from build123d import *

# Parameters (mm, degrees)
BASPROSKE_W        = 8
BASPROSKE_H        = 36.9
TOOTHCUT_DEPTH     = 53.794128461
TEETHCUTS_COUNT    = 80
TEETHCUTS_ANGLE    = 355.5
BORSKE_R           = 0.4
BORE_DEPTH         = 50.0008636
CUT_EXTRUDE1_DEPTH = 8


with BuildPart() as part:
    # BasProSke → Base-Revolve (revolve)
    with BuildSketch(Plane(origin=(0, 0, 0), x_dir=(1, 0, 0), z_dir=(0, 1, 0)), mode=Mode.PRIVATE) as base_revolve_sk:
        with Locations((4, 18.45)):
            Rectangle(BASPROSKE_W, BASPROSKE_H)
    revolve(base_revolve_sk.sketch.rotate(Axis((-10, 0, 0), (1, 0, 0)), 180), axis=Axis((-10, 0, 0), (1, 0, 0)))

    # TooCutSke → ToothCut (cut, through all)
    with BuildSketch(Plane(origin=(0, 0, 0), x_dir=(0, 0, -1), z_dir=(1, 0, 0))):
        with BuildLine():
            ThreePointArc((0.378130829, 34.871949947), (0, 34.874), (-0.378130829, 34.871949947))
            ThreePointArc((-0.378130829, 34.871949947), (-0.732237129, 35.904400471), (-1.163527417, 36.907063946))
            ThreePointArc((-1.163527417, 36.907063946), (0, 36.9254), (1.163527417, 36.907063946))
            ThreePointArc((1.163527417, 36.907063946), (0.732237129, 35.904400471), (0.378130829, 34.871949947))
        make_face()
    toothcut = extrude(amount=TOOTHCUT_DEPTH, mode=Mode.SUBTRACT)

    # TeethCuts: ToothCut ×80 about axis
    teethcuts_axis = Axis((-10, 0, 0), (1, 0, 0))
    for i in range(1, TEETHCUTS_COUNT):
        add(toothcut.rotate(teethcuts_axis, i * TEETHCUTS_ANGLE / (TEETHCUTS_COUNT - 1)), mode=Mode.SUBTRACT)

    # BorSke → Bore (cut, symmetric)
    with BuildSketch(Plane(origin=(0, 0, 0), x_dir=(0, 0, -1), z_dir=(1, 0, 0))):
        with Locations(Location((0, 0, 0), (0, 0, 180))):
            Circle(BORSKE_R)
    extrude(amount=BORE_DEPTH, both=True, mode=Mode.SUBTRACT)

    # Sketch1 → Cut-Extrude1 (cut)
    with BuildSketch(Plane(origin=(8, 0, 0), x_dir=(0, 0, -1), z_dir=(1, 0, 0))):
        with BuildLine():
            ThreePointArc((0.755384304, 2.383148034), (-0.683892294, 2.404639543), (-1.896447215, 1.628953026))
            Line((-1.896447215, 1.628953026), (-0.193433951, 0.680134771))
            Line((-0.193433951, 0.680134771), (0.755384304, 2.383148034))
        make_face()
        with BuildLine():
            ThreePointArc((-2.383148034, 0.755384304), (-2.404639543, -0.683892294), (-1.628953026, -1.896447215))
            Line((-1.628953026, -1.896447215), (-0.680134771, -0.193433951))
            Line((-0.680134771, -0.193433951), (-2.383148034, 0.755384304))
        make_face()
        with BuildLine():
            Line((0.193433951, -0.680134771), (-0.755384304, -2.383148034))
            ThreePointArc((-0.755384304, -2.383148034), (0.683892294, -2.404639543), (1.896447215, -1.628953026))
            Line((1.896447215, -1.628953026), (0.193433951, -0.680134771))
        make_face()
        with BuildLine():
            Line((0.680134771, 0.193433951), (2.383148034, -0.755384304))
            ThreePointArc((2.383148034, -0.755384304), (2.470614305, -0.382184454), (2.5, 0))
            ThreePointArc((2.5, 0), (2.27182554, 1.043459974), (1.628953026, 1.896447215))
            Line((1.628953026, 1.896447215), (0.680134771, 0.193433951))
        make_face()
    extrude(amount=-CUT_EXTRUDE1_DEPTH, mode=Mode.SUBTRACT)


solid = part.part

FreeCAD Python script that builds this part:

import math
import FreeCAD as App
import Part
import Sketcher

doc = App.newDocument("Part")
params = doc.addObject("Spreadsheet::Sheet", "Params")
for row, (alias, value) in enumerate([
    ("sketch1_width", "8 mm"),
    ("sketch1_height", "36.9 mm"),
    ("revolution_angle", "360 deg"),
    ("sketch2_radius", "14.4 mm"),
    ("sketch3_diameter", "0.8 mm"),
    ("pocket2_length", "100.001727 mm"),
    ("sketch4_radius", "2.5 mm"),
    ("pocket3_length", "8 mm"),
], start=1):
    params.set(f"A{row}", alias)
    params.set(f"B{row}", "=" + value)
    params.setAlias(f"B{row}", alias)

body = doc.addObject("PartDesign::Body", "Body")

# Sketch on XZ plane
sketch1 = doc.addObject("Sketcher::SketchObject", "Sketch")
body.addObject(sketch1)
sketch1.AttachmentSupport = (doc.XZ_Plane, [""])
sketch1.MapMode = "FlatFace"
sketch1.addGeometry(Part.LineSegment(App.Vector(0, -36.9, 0), App.Vector(0, 0, 0)), False)
sketch1.addGeometry(Part.LineSegment(App.Vector(0, 0, 0), App.Vector(8, 0, 0)), False)
sketch1.addGeometry(Part.LineSegment(App.Vector(8, 0, 0), App.Vector(8, -36.9, 0)), False)
sketch1.addGeometry(Part.LineSegment(App.Vector(8, -36.9, 0), App.Vector(0, -36.9, 0)), False)
sketch1.addConstraint(Sketcher.Constraint("Coincident", 0, 2, 1, 1))
sketch1.addConstraint(Sketcher.Constraint("Coincident", 1, 2, 2, 1))
sketch1.addConstraint(Sketcher.Constraint("Coincident", 2, 2, 3, 1))
sketch1.addConstraint(Sketcher.Constraint("Coincident", 3, 2, 0, 1))
sketch1.addConstraint(Sketcher.Constraint("Vertical", 0))
sketch1.addConstraint(Sketcher.Constraint("Horizontal", 1))
sketch1.addConstraint(Sketcher.Constraint("Vertical", 2))
sketch1.addConstraint(Sketcher.Constraint("Horizontal", 3))
sketch1.addConstraint(Sketcher.Constraint("Coincident", 0, 2, -1, 1))
sketch1.addConstraint(Sketcher.Constraint("DistanceX", 1, 1, 1, 2, 8.0))
sketch1.addConstraint(Sketcher.Constraint("DistanceY", 0, 1, 0, 2, 36.9))
sketch1.setExpression("Constraints[9]", "Params.sketch1_width")
sketch1.setExpression("Constraints[10]", "Params.sketch1_height")
revolution = doc.addObject("PartDesign::Revolution", "Revolution")
body.addObject(revolution)
revolution.Profile = sketch1
revolution.ReferenceAxis = (sketch1, ["H_Axis"])
revolution.setExpression("Angle", "Params.revolution_angle")

# Sketch on YZ plane
sketch2 = doc.addObject("Sketcher::SketchObject", "Sketch001")
body.addObject(sketch2)
sketch2.AttachmentSupport = (doc.YZ_Plane, [""])
sketch2.MapMode = "FlatFace"
sketch2.addGeometry(Part.ArcOfCircle(Part.Circle(App.Vector(-0.000007, 0, 0), App.Vector(0, 0, 1), 34.874007), math.radians(-0.621257), math.radians(0.621257)), False)
sketch2.addGeometry(Part.ArcOfCircle(Part.Circle(App.Vector(30.719806, -14.166521, 0), App.Vector(0, 0, 1), 14.4), math.radians(64.553337), math.radians(73.241201)), False)
sketch2.addGeometry(Part.ArcOfCircle(Part.Circle(App.Vector(0, 0, 0), App.Vector(0, 0, 1), 36.9254), math.radians(-1.805701), math.radians(1.805701)), False)
sketch2.addGeometry(Part.ArcOfCircle(Part.Circle(App.Vector(30.719806, 14.166521, 0), App.Vector(0, 0, 1), 14.4), math.radians(-73.241201), math.radians(-64.553337)), False)
sketch2.addConstraint(Sketcher.Constraint("Coincident", 0, 1, 1, 2))
sketch2.addConstraint(Sketcher.Constraint("Coincident", 1, 1, 2, 1))
sketch2.addConstraint(Sketcher.Constraint("Coincident", 2, 2, 3, 2))
sketch2.addConstraint(Sketcher.Constraint("Coincident", 3, 1, 0, 2))
sketch2.addConstraint(Sketcher.Constraint("Coincident", 0, 3, -1, 1))
sketch2.addConstraint(Sketcher.Constraint("Coincident", 2, 3, -1, 1))
sketch2.addConstraint(Sketcher.Constraint("Equal", 1, 3))
sketch2.addConstraint(Sketcher.Constraint("Symmetric", 1, 3, 3, 3, -1))
sketch2.addConstraint(Sketcher.Constraint("Radius", 1, 14.4))
sketch2.addConstraint(Sketcher.Constraint("Radius", 2, 36.9254))
sketch2.addConstraint(Sketcher.Constraint("Radius", 0, 34.874007))
sketch2.addConstraint(Sketcher.Constraint("DistanceY", 1, 3, -1, 1, 14.166521))
sketch2.addConstraint(Sketcher.Constraint("DistanceY", 0, 1, -1, 1, 0.378131))
sketch2.setExpression("Constraints[8]", "Params.sketch2_radius")
pocket1 = doc.addObject("PartDesign::Pocket", "Pocket")
body.addObject(pocket1)
pocket1.Profile = sketch2
pocket1.Type = "ThroughAll"
pocket1.Reversed = True
doc.recompute()

polarpattern = doc.addObject("PartDesign::PolarPattern", "PolarPattern")
body.addObject(polarpattern)
polarpattern.Originals = [pocket1]
polarpattern.Axis = (doc.X_Axis, [""])
polarpattern.Angle = 360
polarpattern.Occurrences = 80
body.Tip = polarpattern

# Sketch on YZ plane
sketch3 = doc.addObject("Sketcher::SketchObject", "Sketch002")
body.addObject(sketch3)
sketch3.AttachmentSupport = (doc.YZ_Plane, [""])
sketch3.MapMode = "FlatFace"
sketch3.addGeometry(Part.Circle(App.Vector(0, 0, 0), App.Vector(0, 0, 1), 0.4), False)
sketch3.addConstraint(Sketcher.Constraint("Coincident", 0, 3, -1, 1))
sketch3.addConstraint(Sketcher.Constraint("Diameter", 0, 0.8))
sketch3.setExpression("Constraints[1]", "Params.sketch3_diameter")
pocket2 = doc.addObject("PartDesign::Pocket", "Pocket001")
body.addObject(pocket2)
pocket2.Profile = sketch3
pocket2.setExpression("Length", "Params.pocket2_length")
pocket2.Midplane = True

# Sketch on YZ plane
sketch4 = doc.addObject("Sketcher::SketchObject", "Sketch003")
body.addObject(sketch4)
sketch4.AttachmentSupport = (doc.YZ_Plane, [""])
sketch4.MapMode = "FlatFace"
sketch4.AttachmentOffset = App.Placement(App.Vector(0, 0, 8), App.Rotation())
sketch4.addGeometry(Part.ArcOfCircle(Part.Circle(App.Vector(0, 0, 0), App.Vector(0, 0, 1), 2.5), math.radians(-17.587007), math.radians(49.339075)), False)
sketch4.addGeometry(Part.LineSegment(App.Vector(1.628953, 1.896447, 0), App.Vector(0.680135, 0.193434, 0)), False)
sketch4.addGeometry(Part.LineSegment(App.Vector(0.680135, 0.193434, 0), App.Vector(2.383148, -0.755384, 0)), False)
sketch4.addGeometry(Part.ArcOfCircle(Part.Circle(App.Vector(0, 0, 0), App.Vector(0, 0, 1), 2.5), math.radians(72.412993), math.radians(139.339075)), False)
sketch4.addGeometry(Part.LineSegment(App.Vector(-1.896447, 1.628953, 0), App.Vector(-0.193434, 0.680135, 0)), False)
sketch4.addGeometry(Part.LineSegment(App.Vector(-0.193434, 0.680135, 0), App.Vector(0.755384, 2.383148, 0)), False)
sketch4.addGeometry(Part.LineSegment(App.Vector(-0.680135, -0.193434, 0), App.Vector(-2.383148, 0.755384, 0)), False)
sketch4.addGeometry(Part.ArcOfCircle(Part.Circle(App.Vector(0, 0, 0), App.Vector(0, 0, 1), 2.5), math.radians(162.412993), math.radians(229.339075)), False)
sketch4.addGeometry(Part.LineSegment(App.Vector(-1.628953, -1.896447, 0), App.Vector(-0.680135, -0.193434, 0)), False)
sketch4.addGeometry(Part.LineSegment(App.Vector(0.193434, -0.680135, 0), App.Vector(-0.755384, -2.383148, 0)), False)
sketch4.addGeometry(Part.ArcOfCircle(Part.Circle(App.Vector(0, 0, 0), App.Vector(0, 0, 1), 2.5), math.radians(-107.587007), math.radians(-90)), False)
sketch4.addGeometry(Part.ArcOfCircle(Part.Circle(App.Vector(0, 0, 0), App.Vector(0, 0, 1), 2.5), math.radians(-90), math.radians(-40.660925)), False)
sketch4.addGeometry(Part.LineSegment(App.Vector(1.896447, -1.628953, 0), App.Vector(0.193434, -0.680135, 0)), False)
sketch4.addConstraint(Sketcher.Constraint("Coincident", 0, 2, 1, 1))
sketch4.addConstraint(Sketcher.Constraint("Coincident", 1, 2, 2, 1))
sketch4.addConstraint(Sketcher.Constraint("Coincident", 2, 2, 0, 1))
sketch4.addConstraint(Sketcher.Constraint("Coincident", 3, 2, 4, 1))
sketch4.addConstraint(Sketcher.Constraint("Coincident", 4, 2, 5, 1))
sketch4.addConstraint(Sketcher.Constraint("Coincident", 5, 2, 3, 1))
sketch4.addConstraint(Sketcher.Constraint("Coincident", 6, 2, 7, 1))
sketch4.addConstraint(Sketcher.Constraint("Coincident", 7, 2, 8, 1))
sketch4.addConstraint(Sketcher.Constraint("Coincident", 8, 2, 6, 1))
sketch4.addConstraint(Sketcher.Constraint("Coincident", 9, 2, 10, 1))
sketch4.addConstraint(Sketcher.Constraint("Tangent", 10, 2, 11, 1))
sketch4.addConstraint(Sketcher.Constraint("Coincident", 11, 2, 12, 1))
sketch4.addConstraint(Sketcher.Constraint("Coincident", 12, 2, 9, 1))
sketch4.addConstraint(Sketcher.Constraint("Coincident", 0, 3, -1, 1))
sketch4.addConstraint(Sketcher.Constraint("Coincident", 3, 3, -1, 1))
sketch4.addConstraint(Sketcher.Constraint("Coincident", 7, 3, -1, 1))
sketch4.addConstraint(Sketcher.Constraint("Coincident", 10, 3, -1, 1))
sketch4.addConstraint(Sketcher.Constraint("Equal", 0, 3))
sketch4.addConstraint(Sketcher.Constraint("Equal", 3, 7))
sketch4.addConstraint(Sketcher.Constraint("Equal", 7, 10))
sketch4.addConstraint(Sketcher.Constraint("Equal", 10, 11))
sketch4.addConstraint(Sketcher.Constraint("Symmetric", 1, 2, 8, 2, -1, 1))
sketch4.addConstraint(Sketcher.Constraint("Symmetric", 4, 2, 12, 2, -1, 1))
sketch4.addConstraint(Sketcher.Constraint("PointOnObject", 10, 2, -2))
sketch4.addConstraint(Sketcher.Constraint("Perpendicular", 1, 2))
sketch4.addConstraint(Sketcher.Constraint("Parallel", 2, 4))
sketch4.addConstraint(Sketcher.Constraint("Perpendicular", 4, 5))
sketch4.addConstraint(Sketcher.Constraint("Perpendicular", 5, 6))
sketch4.addConstraint(Sketcher.Constraint("Perpendicular", 6, 8))
sketch4.addConstraint(Sketcher.Constraint("Parallel", 8, 9))
sketch4.addConstraint(Sketcher.Constraint("Perpendicular", 9, 12))
sketch4.addConstraint(Sketcher.Constraint("Equal", 1, 2))
sketch4.addConstraint(Sketcher.Constraint("Equal", 2, 4))
sketch4.addConstraint(Sketcher.Constraint("Equal", 4, 5))
sketch4.addConstraint(Sketcher.Constraint("Radius", 0, 2.5))
sketch4.addConstraint(Sketcher.Constraint("DistanceY", 0, 2, 5, 2, 0.486701))
sketch4.addConstraint(Sketcher.Constraint("Distance", 1, 1.94949))
sketch4.setExpression("Constraints[34]", "Params.sketch4_radius")
pocket3 = doc.addObject("PartDesign::Pocket", "Pocket002")
body.addObject(pocket3)
pocket3.Profile = sketch4
pocket3.setExpression("Length", "Params.pocket3_length")

doc.recompute()
